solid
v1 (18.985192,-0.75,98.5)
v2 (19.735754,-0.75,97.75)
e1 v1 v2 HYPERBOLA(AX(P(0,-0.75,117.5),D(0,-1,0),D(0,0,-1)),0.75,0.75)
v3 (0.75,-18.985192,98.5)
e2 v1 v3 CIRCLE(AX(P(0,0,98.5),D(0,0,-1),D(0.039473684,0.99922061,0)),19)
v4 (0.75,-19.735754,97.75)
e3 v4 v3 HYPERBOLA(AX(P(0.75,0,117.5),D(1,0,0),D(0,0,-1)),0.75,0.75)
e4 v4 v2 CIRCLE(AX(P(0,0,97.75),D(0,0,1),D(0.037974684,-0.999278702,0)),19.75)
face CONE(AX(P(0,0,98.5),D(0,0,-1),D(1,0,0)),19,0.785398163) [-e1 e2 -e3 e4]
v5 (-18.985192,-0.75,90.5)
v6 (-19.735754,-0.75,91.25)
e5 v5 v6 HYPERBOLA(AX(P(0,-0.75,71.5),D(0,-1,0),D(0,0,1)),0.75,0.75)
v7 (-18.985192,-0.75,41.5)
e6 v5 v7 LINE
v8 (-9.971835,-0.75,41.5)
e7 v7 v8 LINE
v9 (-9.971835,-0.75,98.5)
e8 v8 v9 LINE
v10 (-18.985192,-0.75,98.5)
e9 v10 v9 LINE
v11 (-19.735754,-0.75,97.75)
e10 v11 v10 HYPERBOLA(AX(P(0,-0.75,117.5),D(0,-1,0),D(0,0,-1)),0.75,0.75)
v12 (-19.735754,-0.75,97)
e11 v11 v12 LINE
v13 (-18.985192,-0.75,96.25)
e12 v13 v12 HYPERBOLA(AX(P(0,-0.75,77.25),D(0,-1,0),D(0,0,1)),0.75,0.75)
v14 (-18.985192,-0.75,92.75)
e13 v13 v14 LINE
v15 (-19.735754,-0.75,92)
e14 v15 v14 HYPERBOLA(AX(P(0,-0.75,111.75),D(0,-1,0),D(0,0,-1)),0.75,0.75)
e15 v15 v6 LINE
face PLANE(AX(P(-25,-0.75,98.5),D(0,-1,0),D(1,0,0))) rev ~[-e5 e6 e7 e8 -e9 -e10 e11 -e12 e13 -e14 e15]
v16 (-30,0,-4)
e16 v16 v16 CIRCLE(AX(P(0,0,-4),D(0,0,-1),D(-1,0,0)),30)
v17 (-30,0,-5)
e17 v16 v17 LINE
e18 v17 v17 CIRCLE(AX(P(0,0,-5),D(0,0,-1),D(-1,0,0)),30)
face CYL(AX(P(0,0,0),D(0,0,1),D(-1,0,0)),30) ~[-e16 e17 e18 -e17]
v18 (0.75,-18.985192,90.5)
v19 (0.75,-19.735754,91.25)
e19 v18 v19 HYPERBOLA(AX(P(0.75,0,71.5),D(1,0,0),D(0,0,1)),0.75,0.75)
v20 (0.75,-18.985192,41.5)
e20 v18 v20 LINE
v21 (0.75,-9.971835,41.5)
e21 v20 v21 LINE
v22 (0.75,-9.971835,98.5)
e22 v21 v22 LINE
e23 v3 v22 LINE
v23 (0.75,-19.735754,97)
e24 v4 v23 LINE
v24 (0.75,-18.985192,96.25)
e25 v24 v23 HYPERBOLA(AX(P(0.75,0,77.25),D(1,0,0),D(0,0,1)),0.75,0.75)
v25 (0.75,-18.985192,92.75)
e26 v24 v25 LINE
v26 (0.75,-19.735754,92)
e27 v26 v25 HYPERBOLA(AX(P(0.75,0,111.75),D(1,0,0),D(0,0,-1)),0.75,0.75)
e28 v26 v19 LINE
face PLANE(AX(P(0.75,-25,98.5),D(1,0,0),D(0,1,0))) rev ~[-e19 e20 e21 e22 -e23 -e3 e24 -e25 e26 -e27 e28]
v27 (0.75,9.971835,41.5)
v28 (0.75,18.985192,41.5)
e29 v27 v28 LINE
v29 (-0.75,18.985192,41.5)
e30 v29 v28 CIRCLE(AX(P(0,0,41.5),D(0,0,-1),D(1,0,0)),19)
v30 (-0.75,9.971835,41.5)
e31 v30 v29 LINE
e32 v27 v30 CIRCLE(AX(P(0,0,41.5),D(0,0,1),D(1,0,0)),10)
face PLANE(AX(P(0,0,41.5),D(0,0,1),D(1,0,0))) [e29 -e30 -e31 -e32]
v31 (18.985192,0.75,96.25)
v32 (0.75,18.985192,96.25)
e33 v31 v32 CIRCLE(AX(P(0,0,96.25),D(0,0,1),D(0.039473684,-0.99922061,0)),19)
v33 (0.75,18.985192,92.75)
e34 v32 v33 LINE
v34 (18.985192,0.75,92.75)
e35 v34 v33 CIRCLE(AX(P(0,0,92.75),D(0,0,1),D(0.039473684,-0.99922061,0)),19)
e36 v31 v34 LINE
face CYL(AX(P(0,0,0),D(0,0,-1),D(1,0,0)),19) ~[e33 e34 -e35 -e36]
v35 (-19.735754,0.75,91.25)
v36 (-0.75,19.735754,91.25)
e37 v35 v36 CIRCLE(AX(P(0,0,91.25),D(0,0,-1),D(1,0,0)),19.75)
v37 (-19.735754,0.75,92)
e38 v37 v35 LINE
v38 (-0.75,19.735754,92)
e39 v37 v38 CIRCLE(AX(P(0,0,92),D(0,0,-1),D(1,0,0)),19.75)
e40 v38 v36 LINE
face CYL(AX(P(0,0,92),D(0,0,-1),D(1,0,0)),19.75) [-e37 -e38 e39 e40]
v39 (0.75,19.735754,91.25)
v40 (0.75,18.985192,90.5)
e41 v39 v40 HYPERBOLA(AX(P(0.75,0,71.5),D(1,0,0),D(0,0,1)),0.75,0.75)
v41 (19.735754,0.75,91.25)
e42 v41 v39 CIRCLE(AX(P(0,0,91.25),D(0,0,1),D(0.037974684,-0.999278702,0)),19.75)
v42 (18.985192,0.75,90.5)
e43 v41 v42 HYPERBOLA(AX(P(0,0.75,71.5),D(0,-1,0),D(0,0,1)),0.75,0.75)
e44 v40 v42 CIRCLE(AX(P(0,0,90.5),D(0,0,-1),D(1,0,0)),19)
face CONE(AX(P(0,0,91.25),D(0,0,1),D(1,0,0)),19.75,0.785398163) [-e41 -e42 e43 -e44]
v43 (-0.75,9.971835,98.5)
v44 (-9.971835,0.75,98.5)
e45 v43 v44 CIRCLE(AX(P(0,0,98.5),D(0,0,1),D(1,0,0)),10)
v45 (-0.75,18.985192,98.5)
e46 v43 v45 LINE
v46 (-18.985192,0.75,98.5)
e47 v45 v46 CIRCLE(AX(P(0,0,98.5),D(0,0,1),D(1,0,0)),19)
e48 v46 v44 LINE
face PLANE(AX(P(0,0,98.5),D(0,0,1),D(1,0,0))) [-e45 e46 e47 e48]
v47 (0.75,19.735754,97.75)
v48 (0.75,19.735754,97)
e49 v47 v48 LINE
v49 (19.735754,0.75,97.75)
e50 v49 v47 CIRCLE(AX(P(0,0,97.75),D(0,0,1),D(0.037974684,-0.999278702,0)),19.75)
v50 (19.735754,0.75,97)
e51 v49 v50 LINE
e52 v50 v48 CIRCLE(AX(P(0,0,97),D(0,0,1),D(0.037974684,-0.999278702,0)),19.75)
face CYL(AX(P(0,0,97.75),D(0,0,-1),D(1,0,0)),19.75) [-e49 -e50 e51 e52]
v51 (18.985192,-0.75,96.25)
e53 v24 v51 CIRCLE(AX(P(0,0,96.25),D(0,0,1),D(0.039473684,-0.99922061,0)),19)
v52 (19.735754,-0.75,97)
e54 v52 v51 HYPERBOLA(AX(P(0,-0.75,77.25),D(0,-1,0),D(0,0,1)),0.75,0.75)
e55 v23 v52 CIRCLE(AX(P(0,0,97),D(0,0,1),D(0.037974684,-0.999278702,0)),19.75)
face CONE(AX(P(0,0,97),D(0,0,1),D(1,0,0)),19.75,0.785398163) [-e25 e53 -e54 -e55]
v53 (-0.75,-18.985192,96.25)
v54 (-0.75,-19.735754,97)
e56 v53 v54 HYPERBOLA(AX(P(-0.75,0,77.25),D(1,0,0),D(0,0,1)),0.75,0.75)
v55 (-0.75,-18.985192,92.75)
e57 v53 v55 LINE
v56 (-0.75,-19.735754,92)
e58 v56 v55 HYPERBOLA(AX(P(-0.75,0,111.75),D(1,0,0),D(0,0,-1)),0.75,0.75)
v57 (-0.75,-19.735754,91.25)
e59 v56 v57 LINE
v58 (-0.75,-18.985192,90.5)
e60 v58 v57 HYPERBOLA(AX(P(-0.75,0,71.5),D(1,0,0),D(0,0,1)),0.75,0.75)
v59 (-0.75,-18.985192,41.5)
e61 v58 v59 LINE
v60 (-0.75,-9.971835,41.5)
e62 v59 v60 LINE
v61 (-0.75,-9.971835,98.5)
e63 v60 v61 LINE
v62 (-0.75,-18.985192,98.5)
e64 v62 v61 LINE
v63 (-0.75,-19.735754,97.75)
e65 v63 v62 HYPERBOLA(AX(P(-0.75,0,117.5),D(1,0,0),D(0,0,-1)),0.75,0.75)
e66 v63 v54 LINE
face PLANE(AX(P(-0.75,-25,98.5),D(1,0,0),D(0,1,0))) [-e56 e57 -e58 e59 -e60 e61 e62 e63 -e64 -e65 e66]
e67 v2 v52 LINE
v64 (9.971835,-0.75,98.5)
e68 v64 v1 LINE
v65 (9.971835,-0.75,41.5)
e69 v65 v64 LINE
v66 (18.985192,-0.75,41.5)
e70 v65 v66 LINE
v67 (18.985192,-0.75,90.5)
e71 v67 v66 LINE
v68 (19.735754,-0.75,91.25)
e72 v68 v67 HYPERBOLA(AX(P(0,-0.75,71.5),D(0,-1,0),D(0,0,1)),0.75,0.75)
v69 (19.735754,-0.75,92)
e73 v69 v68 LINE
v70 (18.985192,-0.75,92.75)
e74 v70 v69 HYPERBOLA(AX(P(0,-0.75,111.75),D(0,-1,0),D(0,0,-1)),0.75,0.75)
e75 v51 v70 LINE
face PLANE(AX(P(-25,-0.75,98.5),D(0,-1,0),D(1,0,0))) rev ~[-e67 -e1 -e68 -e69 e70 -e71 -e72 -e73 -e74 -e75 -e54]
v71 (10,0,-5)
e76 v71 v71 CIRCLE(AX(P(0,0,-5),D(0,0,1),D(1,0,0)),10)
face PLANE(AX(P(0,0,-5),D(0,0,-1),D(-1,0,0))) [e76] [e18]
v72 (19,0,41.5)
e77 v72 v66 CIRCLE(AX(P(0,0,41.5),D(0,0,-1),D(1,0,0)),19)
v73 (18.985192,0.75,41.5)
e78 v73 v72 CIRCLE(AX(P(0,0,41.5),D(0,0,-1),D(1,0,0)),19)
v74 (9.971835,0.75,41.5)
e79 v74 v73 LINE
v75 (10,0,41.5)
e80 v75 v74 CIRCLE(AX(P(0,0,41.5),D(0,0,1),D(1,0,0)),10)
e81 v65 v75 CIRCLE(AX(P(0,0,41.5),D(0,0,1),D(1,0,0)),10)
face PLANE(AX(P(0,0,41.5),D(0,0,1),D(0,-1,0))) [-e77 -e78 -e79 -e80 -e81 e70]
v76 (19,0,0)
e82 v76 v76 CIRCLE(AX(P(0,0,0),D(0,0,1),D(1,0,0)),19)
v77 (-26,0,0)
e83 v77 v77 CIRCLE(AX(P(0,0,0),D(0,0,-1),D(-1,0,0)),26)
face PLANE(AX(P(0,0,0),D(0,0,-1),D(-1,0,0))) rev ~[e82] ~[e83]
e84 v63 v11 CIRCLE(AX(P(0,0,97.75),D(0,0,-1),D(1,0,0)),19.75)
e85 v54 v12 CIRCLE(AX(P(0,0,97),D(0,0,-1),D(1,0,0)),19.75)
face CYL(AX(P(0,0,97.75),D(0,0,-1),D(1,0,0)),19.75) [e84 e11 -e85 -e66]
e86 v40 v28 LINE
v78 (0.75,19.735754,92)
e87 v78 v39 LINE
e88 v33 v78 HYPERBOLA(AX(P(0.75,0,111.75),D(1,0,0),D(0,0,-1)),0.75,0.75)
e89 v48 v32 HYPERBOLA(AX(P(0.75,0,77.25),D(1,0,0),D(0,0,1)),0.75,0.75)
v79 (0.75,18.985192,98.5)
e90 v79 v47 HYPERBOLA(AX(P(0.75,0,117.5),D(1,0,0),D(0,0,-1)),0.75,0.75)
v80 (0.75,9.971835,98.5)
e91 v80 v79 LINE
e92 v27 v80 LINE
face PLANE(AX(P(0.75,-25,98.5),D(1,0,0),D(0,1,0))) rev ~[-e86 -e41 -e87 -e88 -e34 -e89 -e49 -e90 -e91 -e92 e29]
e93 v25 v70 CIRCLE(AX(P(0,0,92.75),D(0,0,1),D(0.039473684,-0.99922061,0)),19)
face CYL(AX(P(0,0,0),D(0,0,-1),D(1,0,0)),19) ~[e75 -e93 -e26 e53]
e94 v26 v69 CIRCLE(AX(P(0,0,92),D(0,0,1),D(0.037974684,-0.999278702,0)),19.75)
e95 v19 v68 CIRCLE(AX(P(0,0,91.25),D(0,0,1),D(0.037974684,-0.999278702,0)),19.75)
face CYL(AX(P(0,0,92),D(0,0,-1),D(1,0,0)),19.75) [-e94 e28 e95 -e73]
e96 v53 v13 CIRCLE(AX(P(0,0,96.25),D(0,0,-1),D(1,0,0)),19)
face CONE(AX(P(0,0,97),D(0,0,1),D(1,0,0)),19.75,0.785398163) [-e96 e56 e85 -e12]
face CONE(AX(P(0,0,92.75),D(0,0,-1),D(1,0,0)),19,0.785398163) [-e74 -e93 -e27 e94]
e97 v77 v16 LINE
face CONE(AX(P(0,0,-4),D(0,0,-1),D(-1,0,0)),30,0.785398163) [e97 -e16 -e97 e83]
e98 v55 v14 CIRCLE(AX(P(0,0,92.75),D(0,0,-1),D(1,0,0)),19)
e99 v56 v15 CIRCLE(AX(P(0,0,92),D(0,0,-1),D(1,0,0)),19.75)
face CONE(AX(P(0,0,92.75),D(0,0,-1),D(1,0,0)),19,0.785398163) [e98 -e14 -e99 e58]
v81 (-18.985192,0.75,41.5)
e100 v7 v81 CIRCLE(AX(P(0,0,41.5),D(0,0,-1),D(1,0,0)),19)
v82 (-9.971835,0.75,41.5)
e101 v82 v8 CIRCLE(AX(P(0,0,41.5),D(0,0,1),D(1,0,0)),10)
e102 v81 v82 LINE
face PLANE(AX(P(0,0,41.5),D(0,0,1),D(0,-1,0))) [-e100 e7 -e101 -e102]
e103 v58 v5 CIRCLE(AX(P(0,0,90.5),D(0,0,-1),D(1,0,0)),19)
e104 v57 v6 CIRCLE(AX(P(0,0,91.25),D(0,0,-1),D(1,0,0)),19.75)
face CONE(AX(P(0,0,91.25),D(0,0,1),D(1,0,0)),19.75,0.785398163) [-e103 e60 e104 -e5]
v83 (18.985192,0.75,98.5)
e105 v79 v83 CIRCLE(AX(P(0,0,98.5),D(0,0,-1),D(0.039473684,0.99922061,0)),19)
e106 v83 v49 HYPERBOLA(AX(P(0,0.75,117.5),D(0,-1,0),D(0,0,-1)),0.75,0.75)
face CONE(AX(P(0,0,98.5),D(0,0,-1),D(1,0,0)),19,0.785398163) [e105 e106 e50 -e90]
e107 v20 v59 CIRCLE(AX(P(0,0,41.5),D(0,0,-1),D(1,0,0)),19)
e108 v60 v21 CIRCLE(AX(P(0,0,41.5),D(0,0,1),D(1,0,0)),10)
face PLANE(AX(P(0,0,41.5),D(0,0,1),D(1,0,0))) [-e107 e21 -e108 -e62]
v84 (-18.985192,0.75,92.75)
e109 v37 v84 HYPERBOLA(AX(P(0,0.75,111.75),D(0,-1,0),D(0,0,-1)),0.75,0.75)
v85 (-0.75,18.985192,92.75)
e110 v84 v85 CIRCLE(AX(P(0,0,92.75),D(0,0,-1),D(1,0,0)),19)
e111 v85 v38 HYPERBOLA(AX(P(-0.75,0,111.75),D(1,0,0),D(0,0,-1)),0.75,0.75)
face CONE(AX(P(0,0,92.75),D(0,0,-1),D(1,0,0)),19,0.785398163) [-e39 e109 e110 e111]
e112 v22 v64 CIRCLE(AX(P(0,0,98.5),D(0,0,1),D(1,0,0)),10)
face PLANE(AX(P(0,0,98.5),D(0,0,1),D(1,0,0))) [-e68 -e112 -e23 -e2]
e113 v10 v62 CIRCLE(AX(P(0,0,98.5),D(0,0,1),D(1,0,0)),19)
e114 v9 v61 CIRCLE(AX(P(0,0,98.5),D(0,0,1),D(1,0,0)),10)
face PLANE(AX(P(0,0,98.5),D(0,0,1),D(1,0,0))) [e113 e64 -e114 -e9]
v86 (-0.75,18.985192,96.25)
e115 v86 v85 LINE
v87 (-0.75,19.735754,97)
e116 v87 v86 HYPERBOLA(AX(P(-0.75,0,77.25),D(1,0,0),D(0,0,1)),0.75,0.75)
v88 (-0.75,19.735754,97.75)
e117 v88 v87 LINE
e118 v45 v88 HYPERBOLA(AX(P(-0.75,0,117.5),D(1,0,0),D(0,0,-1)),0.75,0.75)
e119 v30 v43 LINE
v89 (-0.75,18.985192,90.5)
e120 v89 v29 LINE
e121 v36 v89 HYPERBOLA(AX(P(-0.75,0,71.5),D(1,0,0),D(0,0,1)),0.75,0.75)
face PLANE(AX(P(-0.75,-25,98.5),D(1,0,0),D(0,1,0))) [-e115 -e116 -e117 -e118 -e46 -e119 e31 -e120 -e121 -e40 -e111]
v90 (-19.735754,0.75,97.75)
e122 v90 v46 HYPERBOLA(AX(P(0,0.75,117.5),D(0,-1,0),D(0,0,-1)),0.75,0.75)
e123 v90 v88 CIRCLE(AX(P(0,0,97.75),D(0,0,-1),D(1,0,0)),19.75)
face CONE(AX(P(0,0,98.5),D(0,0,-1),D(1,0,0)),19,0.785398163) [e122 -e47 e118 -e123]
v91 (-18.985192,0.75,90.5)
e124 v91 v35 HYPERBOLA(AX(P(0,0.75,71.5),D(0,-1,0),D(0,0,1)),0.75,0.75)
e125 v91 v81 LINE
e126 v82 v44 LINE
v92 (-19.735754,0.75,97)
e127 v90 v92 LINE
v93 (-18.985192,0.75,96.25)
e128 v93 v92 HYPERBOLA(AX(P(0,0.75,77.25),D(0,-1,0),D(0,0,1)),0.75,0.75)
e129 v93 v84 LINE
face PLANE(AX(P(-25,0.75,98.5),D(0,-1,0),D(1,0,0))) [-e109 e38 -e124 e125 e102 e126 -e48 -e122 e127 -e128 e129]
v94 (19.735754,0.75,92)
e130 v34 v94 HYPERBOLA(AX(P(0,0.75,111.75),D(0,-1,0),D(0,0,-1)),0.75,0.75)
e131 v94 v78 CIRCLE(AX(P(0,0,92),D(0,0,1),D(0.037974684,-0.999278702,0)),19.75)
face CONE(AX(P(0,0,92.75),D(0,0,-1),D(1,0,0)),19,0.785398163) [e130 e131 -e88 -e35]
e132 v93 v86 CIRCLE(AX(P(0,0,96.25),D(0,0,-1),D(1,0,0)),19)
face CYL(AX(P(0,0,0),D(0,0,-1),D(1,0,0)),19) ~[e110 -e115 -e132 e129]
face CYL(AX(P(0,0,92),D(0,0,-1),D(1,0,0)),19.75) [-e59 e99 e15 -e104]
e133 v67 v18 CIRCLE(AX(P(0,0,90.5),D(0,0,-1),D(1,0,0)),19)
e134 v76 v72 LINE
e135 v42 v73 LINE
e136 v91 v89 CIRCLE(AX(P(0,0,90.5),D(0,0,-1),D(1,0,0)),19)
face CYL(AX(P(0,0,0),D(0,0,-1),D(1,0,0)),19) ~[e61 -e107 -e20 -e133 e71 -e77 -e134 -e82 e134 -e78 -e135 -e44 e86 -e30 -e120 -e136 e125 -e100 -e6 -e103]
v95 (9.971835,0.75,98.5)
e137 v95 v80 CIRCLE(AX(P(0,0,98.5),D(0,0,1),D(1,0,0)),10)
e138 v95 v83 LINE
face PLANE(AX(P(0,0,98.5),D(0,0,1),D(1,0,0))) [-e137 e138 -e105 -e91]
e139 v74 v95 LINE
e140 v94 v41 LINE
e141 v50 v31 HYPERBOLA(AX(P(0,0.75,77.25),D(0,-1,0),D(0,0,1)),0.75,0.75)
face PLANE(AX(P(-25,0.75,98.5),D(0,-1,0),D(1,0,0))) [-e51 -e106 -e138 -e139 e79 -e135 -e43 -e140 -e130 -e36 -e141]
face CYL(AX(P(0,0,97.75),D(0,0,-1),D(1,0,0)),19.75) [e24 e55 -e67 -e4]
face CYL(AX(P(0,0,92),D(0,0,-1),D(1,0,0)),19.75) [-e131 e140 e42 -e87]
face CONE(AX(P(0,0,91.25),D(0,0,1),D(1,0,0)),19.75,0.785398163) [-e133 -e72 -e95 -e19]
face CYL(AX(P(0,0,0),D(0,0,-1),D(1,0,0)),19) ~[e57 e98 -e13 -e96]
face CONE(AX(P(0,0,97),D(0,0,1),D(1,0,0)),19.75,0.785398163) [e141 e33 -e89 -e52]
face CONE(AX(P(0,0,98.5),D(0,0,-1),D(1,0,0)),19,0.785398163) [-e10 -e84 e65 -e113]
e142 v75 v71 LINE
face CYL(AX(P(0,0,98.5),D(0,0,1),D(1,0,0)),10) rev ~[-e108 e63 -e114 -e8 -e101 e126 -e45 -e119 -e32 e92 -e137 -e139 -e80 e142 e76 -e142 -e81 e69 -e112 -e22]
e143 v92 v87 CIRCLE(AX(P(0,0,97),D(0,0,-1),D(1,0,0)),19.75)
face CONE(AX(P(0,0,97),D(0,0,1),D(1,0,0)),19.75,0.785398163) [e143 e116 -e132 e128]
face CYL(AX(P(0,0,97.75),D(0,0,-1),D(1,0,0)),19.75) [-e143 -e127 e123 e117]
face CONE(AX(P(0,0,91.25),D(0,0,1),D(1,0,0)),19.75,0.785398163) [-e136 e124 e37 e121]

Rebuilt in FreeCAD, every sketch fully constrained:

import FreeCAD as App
import Part
import Sketcher

V = App.Vector


def edges_at(feature, points):
    """Names of the edges that pass closest to the given points."""
    edges = feature.Shape.Edges
    near = lambda p: min(range(len(edges)), key=lambda i: edges[i].distToShape(Part.Vertex(*p))[0])
    return sorted({f"Edge{near(p) + 1}" for p in points})


def add_polygon(sketch, points):
    """Adds a closed chain of lines whose ends are joined by coincident constraints."""
    first, n = sketch.GeometryCount, len(points)
    for a, b in zip(points, points[1:] + points[:1]):
        sketch.addGeometry(Part.LineSegment(App.Vector(*a, 0), App.Vector(*b, 0)), False)
    for i in range(n):
        sketch.addConstraint(Sketcher.Constraint("Coincident", first + i, 2, first + (i + 1) % n, 1))

doc = App.newDocument("Part")
body = doc.addObject("PartDesign::Body", "Body")

# Sketch on XY plane
sketch1 = body.newObject("Sketcher::SketchObject", "Sketch")
sketch1.AttachmentSupport = (doc.getObject("XY_Plane"), [""])
sketch1.MapMode = "FlatFace"
sketch1.addGeometry(Part.Circle(V(0, 0, 0), V(0, 0, 1), 19), False)
sketch1.addConstraint(Sketcher.Constraint("Coincident", 0, 3, -1, 1))
sketch1.addConstraint(Sketcher.Constraint("Diameter", 0, 38.0))
pad1 = body.newObject("PartDesign::Pad", "Pad")
pad1.Profile = sketch1
pad1.Length = 98.5

# Sketch on XY plane
sketch2 = body.newObject("Sketcher::SketchObject", "Sketch001")
sketch2.AttachmentSupport = (doc.getObject("XY_Plane"), [""])
sketch2.MapMode = "FlatFace"
sketch2.addGeometry(Part.Circle(V(0, 0, 0), V(0, 0, 1), 30), False)
sketch2.addConstraint(Sketcher.Constraint("Coincident", 0, 3, -1, 1))
sketch2.addConstraint(Sketcher.Constraint("Diameter", 0, 60.0))
pad2 = body.newObject("PartDesign::Pad", "Pad001")
pad2.Profile = sketch2
pad2.Length = 5
pad2.Reversed = True

# Sketch on XY plane
sketch3 = body.newObject("Sketcher::SketchObject", "Sketch002")
sketch3.AttachmentSupport = (doc.getObject("XY_Plane"), [""])
sketch3.MapMode = "FlatFace"
sketch3.AttachmentOffset = App.Placement(V(0, 0, 98.5), App.Rotation())
sketch3.addGeometry(Part.Circle(V(0, 0, 0), V(0, 0, 1), 10), False)
sketch3.addConstraint(Sketcher.Constraint("Coincident", 0, 3, -1, 1))
sketch3.addConstraint(Sketcher.Constraint("Diameter", 0, 20.0))
pocket1 = body.newObject("PartDesign::Pocket", "Pocket")
pocket1.Profile = sketch3
pocket1.Type = "ThroughAll"

# Sketch on XZ plane
sketch4 = body.newObject("Sketcher::SketchObject", "Sketch003")
sketch4.AttachmentSupport = (doc.getObject("XZ_Plane"), [""])
sketch4.MapMode = "FlatFace"
add_polygon(sketch4, [(19, 98.5), (19.75, 97.75), (19.75, 97), (19, 96.25)])  # lines 0-3
add_polygon(sketch4, [(19, 92.75), (19.75, 92), (19.75, 91.25), (19, 90.5)])  # lines 4-7
sketch4.addConstraint(Sketcher.Constraint("Vertical", 1))
sketch4.addConstraint(Sketcher.Constraint("Vertical", 3))
sketch4.addConstraint(Sketcher.Constraint("Vertical", 5))
sketch4.addConstraint(Sketcher.Constraint("Vertical", 7))
sketch4.addConstraint(Sketcher.Constraint("Perpendicular", 0, 2))
sketch4.addConstraint(Sketcher.Constraint("Perpendicular", 2, 4))
sketch4.addConstraint(Sketcher.Constraint("Perpendicular", 4, 6))
sketch4.addConstraint(Sketcher.Constraint("Vertical", 1, 2, 4, 2))
sketch4.addConstraint(Sketcher.Constraint("Vertical", 3, 2, 6, 2))
sketch4.addConstraint(Sketcher.Constraint("Equal", 1, 5))
sketch4.addConstraint(Sketcher.Constraint("Equal", 0, 2))
sketch4.addConstraint(Sketcher.Constraint("DistanceY", -1, 1, 1, 2, 97.0))
sketch4.addConstraint(Sketcher.Constraint("DistanceX", -1, 1, 2, 2, 19.0))
sketch4.addConstraint(Sketcher.Constraint("DistanceY", -1, 1, 4, 2, 92.0))
sketch4.addConstraint(Sketcher.Constraint("DistanceY", 5, 2, 2, 2, 5.0))
sketch4.addConstraint(Sketcher.Constraint("DistanceY", 1, 2, 1, 1, 0.75))
revolution = body.newObject("PartDesign::Revolution", "Revolution")
revolution.Profile = sketch4
revolution.ReferenceAxis = (sketch4, ["V_Axis"])
revolution.Angle = 360

# Sketch on XY plane
sketch5 = body.newObject("Sketcher::SketchObject", "Sketch004")
sketch5.AttachmentSupport = (doc.getObject("XY_Plane"), [""])
sketch5.MapMode = "FlatFace"
sketch5.AttachmentOffset = App.Placement(V(0, 0, 98.5), App.Rotation())
add_polygon(sketch5, [(-0.75, 25), (-0.75, -25), (0.75, -25), (0.75, 25)])  # lines 0-3
sketch5.addConstraint(Sketcher.Constraint("Vertical", 0))
sketch5.addConstraint(Sketcher.Constraint("Horizontal", 1))
sketch5.addConstraint(Sketcher.Constraint("Vertical", 2))
sketch5.addConstraint(Sketcher.Constraint("Horizontal", 3))
sketch5.addConstraint(Sketcher.Constraint("Symmetric", 0, 2, 2, 2, -1, 1))
sketch5.addConstraint(Sketcher.Constraint("DistanceY", 0, 2, 0, 1, 50.0))
sketch5.addConstraint(Sketcher.Constraint("DistanceX", 1, 1, 1, 2, 1.5))
pocket2 = body.newObject("PartDesign::Pocket", "Pocket001")
pocket2.Profile = sketch5
pocket2.Length = 57
doc.recompute()

polarpattern = body.newObject("PartDesign::PolarPattern", "PolarPattern")
polarpattern.Originals = [pocket2]
polarpattern.Axis = (doc.getObject("Z_Axis"), [""])
polarpattern.Angle = 90
polarpattern.Occurrences = 2
polarpattern.Reversed = True
body.Tip = polarpattern
doc.recompute()

chamfer = body.newObject("PartDesign::Chamfer", "Chamfer")
chamfer.Base = (polarpattern, edges_at(polarpattern, [(30, 0, 0)]))
chamfer.Size = 4

doc.recompute()
